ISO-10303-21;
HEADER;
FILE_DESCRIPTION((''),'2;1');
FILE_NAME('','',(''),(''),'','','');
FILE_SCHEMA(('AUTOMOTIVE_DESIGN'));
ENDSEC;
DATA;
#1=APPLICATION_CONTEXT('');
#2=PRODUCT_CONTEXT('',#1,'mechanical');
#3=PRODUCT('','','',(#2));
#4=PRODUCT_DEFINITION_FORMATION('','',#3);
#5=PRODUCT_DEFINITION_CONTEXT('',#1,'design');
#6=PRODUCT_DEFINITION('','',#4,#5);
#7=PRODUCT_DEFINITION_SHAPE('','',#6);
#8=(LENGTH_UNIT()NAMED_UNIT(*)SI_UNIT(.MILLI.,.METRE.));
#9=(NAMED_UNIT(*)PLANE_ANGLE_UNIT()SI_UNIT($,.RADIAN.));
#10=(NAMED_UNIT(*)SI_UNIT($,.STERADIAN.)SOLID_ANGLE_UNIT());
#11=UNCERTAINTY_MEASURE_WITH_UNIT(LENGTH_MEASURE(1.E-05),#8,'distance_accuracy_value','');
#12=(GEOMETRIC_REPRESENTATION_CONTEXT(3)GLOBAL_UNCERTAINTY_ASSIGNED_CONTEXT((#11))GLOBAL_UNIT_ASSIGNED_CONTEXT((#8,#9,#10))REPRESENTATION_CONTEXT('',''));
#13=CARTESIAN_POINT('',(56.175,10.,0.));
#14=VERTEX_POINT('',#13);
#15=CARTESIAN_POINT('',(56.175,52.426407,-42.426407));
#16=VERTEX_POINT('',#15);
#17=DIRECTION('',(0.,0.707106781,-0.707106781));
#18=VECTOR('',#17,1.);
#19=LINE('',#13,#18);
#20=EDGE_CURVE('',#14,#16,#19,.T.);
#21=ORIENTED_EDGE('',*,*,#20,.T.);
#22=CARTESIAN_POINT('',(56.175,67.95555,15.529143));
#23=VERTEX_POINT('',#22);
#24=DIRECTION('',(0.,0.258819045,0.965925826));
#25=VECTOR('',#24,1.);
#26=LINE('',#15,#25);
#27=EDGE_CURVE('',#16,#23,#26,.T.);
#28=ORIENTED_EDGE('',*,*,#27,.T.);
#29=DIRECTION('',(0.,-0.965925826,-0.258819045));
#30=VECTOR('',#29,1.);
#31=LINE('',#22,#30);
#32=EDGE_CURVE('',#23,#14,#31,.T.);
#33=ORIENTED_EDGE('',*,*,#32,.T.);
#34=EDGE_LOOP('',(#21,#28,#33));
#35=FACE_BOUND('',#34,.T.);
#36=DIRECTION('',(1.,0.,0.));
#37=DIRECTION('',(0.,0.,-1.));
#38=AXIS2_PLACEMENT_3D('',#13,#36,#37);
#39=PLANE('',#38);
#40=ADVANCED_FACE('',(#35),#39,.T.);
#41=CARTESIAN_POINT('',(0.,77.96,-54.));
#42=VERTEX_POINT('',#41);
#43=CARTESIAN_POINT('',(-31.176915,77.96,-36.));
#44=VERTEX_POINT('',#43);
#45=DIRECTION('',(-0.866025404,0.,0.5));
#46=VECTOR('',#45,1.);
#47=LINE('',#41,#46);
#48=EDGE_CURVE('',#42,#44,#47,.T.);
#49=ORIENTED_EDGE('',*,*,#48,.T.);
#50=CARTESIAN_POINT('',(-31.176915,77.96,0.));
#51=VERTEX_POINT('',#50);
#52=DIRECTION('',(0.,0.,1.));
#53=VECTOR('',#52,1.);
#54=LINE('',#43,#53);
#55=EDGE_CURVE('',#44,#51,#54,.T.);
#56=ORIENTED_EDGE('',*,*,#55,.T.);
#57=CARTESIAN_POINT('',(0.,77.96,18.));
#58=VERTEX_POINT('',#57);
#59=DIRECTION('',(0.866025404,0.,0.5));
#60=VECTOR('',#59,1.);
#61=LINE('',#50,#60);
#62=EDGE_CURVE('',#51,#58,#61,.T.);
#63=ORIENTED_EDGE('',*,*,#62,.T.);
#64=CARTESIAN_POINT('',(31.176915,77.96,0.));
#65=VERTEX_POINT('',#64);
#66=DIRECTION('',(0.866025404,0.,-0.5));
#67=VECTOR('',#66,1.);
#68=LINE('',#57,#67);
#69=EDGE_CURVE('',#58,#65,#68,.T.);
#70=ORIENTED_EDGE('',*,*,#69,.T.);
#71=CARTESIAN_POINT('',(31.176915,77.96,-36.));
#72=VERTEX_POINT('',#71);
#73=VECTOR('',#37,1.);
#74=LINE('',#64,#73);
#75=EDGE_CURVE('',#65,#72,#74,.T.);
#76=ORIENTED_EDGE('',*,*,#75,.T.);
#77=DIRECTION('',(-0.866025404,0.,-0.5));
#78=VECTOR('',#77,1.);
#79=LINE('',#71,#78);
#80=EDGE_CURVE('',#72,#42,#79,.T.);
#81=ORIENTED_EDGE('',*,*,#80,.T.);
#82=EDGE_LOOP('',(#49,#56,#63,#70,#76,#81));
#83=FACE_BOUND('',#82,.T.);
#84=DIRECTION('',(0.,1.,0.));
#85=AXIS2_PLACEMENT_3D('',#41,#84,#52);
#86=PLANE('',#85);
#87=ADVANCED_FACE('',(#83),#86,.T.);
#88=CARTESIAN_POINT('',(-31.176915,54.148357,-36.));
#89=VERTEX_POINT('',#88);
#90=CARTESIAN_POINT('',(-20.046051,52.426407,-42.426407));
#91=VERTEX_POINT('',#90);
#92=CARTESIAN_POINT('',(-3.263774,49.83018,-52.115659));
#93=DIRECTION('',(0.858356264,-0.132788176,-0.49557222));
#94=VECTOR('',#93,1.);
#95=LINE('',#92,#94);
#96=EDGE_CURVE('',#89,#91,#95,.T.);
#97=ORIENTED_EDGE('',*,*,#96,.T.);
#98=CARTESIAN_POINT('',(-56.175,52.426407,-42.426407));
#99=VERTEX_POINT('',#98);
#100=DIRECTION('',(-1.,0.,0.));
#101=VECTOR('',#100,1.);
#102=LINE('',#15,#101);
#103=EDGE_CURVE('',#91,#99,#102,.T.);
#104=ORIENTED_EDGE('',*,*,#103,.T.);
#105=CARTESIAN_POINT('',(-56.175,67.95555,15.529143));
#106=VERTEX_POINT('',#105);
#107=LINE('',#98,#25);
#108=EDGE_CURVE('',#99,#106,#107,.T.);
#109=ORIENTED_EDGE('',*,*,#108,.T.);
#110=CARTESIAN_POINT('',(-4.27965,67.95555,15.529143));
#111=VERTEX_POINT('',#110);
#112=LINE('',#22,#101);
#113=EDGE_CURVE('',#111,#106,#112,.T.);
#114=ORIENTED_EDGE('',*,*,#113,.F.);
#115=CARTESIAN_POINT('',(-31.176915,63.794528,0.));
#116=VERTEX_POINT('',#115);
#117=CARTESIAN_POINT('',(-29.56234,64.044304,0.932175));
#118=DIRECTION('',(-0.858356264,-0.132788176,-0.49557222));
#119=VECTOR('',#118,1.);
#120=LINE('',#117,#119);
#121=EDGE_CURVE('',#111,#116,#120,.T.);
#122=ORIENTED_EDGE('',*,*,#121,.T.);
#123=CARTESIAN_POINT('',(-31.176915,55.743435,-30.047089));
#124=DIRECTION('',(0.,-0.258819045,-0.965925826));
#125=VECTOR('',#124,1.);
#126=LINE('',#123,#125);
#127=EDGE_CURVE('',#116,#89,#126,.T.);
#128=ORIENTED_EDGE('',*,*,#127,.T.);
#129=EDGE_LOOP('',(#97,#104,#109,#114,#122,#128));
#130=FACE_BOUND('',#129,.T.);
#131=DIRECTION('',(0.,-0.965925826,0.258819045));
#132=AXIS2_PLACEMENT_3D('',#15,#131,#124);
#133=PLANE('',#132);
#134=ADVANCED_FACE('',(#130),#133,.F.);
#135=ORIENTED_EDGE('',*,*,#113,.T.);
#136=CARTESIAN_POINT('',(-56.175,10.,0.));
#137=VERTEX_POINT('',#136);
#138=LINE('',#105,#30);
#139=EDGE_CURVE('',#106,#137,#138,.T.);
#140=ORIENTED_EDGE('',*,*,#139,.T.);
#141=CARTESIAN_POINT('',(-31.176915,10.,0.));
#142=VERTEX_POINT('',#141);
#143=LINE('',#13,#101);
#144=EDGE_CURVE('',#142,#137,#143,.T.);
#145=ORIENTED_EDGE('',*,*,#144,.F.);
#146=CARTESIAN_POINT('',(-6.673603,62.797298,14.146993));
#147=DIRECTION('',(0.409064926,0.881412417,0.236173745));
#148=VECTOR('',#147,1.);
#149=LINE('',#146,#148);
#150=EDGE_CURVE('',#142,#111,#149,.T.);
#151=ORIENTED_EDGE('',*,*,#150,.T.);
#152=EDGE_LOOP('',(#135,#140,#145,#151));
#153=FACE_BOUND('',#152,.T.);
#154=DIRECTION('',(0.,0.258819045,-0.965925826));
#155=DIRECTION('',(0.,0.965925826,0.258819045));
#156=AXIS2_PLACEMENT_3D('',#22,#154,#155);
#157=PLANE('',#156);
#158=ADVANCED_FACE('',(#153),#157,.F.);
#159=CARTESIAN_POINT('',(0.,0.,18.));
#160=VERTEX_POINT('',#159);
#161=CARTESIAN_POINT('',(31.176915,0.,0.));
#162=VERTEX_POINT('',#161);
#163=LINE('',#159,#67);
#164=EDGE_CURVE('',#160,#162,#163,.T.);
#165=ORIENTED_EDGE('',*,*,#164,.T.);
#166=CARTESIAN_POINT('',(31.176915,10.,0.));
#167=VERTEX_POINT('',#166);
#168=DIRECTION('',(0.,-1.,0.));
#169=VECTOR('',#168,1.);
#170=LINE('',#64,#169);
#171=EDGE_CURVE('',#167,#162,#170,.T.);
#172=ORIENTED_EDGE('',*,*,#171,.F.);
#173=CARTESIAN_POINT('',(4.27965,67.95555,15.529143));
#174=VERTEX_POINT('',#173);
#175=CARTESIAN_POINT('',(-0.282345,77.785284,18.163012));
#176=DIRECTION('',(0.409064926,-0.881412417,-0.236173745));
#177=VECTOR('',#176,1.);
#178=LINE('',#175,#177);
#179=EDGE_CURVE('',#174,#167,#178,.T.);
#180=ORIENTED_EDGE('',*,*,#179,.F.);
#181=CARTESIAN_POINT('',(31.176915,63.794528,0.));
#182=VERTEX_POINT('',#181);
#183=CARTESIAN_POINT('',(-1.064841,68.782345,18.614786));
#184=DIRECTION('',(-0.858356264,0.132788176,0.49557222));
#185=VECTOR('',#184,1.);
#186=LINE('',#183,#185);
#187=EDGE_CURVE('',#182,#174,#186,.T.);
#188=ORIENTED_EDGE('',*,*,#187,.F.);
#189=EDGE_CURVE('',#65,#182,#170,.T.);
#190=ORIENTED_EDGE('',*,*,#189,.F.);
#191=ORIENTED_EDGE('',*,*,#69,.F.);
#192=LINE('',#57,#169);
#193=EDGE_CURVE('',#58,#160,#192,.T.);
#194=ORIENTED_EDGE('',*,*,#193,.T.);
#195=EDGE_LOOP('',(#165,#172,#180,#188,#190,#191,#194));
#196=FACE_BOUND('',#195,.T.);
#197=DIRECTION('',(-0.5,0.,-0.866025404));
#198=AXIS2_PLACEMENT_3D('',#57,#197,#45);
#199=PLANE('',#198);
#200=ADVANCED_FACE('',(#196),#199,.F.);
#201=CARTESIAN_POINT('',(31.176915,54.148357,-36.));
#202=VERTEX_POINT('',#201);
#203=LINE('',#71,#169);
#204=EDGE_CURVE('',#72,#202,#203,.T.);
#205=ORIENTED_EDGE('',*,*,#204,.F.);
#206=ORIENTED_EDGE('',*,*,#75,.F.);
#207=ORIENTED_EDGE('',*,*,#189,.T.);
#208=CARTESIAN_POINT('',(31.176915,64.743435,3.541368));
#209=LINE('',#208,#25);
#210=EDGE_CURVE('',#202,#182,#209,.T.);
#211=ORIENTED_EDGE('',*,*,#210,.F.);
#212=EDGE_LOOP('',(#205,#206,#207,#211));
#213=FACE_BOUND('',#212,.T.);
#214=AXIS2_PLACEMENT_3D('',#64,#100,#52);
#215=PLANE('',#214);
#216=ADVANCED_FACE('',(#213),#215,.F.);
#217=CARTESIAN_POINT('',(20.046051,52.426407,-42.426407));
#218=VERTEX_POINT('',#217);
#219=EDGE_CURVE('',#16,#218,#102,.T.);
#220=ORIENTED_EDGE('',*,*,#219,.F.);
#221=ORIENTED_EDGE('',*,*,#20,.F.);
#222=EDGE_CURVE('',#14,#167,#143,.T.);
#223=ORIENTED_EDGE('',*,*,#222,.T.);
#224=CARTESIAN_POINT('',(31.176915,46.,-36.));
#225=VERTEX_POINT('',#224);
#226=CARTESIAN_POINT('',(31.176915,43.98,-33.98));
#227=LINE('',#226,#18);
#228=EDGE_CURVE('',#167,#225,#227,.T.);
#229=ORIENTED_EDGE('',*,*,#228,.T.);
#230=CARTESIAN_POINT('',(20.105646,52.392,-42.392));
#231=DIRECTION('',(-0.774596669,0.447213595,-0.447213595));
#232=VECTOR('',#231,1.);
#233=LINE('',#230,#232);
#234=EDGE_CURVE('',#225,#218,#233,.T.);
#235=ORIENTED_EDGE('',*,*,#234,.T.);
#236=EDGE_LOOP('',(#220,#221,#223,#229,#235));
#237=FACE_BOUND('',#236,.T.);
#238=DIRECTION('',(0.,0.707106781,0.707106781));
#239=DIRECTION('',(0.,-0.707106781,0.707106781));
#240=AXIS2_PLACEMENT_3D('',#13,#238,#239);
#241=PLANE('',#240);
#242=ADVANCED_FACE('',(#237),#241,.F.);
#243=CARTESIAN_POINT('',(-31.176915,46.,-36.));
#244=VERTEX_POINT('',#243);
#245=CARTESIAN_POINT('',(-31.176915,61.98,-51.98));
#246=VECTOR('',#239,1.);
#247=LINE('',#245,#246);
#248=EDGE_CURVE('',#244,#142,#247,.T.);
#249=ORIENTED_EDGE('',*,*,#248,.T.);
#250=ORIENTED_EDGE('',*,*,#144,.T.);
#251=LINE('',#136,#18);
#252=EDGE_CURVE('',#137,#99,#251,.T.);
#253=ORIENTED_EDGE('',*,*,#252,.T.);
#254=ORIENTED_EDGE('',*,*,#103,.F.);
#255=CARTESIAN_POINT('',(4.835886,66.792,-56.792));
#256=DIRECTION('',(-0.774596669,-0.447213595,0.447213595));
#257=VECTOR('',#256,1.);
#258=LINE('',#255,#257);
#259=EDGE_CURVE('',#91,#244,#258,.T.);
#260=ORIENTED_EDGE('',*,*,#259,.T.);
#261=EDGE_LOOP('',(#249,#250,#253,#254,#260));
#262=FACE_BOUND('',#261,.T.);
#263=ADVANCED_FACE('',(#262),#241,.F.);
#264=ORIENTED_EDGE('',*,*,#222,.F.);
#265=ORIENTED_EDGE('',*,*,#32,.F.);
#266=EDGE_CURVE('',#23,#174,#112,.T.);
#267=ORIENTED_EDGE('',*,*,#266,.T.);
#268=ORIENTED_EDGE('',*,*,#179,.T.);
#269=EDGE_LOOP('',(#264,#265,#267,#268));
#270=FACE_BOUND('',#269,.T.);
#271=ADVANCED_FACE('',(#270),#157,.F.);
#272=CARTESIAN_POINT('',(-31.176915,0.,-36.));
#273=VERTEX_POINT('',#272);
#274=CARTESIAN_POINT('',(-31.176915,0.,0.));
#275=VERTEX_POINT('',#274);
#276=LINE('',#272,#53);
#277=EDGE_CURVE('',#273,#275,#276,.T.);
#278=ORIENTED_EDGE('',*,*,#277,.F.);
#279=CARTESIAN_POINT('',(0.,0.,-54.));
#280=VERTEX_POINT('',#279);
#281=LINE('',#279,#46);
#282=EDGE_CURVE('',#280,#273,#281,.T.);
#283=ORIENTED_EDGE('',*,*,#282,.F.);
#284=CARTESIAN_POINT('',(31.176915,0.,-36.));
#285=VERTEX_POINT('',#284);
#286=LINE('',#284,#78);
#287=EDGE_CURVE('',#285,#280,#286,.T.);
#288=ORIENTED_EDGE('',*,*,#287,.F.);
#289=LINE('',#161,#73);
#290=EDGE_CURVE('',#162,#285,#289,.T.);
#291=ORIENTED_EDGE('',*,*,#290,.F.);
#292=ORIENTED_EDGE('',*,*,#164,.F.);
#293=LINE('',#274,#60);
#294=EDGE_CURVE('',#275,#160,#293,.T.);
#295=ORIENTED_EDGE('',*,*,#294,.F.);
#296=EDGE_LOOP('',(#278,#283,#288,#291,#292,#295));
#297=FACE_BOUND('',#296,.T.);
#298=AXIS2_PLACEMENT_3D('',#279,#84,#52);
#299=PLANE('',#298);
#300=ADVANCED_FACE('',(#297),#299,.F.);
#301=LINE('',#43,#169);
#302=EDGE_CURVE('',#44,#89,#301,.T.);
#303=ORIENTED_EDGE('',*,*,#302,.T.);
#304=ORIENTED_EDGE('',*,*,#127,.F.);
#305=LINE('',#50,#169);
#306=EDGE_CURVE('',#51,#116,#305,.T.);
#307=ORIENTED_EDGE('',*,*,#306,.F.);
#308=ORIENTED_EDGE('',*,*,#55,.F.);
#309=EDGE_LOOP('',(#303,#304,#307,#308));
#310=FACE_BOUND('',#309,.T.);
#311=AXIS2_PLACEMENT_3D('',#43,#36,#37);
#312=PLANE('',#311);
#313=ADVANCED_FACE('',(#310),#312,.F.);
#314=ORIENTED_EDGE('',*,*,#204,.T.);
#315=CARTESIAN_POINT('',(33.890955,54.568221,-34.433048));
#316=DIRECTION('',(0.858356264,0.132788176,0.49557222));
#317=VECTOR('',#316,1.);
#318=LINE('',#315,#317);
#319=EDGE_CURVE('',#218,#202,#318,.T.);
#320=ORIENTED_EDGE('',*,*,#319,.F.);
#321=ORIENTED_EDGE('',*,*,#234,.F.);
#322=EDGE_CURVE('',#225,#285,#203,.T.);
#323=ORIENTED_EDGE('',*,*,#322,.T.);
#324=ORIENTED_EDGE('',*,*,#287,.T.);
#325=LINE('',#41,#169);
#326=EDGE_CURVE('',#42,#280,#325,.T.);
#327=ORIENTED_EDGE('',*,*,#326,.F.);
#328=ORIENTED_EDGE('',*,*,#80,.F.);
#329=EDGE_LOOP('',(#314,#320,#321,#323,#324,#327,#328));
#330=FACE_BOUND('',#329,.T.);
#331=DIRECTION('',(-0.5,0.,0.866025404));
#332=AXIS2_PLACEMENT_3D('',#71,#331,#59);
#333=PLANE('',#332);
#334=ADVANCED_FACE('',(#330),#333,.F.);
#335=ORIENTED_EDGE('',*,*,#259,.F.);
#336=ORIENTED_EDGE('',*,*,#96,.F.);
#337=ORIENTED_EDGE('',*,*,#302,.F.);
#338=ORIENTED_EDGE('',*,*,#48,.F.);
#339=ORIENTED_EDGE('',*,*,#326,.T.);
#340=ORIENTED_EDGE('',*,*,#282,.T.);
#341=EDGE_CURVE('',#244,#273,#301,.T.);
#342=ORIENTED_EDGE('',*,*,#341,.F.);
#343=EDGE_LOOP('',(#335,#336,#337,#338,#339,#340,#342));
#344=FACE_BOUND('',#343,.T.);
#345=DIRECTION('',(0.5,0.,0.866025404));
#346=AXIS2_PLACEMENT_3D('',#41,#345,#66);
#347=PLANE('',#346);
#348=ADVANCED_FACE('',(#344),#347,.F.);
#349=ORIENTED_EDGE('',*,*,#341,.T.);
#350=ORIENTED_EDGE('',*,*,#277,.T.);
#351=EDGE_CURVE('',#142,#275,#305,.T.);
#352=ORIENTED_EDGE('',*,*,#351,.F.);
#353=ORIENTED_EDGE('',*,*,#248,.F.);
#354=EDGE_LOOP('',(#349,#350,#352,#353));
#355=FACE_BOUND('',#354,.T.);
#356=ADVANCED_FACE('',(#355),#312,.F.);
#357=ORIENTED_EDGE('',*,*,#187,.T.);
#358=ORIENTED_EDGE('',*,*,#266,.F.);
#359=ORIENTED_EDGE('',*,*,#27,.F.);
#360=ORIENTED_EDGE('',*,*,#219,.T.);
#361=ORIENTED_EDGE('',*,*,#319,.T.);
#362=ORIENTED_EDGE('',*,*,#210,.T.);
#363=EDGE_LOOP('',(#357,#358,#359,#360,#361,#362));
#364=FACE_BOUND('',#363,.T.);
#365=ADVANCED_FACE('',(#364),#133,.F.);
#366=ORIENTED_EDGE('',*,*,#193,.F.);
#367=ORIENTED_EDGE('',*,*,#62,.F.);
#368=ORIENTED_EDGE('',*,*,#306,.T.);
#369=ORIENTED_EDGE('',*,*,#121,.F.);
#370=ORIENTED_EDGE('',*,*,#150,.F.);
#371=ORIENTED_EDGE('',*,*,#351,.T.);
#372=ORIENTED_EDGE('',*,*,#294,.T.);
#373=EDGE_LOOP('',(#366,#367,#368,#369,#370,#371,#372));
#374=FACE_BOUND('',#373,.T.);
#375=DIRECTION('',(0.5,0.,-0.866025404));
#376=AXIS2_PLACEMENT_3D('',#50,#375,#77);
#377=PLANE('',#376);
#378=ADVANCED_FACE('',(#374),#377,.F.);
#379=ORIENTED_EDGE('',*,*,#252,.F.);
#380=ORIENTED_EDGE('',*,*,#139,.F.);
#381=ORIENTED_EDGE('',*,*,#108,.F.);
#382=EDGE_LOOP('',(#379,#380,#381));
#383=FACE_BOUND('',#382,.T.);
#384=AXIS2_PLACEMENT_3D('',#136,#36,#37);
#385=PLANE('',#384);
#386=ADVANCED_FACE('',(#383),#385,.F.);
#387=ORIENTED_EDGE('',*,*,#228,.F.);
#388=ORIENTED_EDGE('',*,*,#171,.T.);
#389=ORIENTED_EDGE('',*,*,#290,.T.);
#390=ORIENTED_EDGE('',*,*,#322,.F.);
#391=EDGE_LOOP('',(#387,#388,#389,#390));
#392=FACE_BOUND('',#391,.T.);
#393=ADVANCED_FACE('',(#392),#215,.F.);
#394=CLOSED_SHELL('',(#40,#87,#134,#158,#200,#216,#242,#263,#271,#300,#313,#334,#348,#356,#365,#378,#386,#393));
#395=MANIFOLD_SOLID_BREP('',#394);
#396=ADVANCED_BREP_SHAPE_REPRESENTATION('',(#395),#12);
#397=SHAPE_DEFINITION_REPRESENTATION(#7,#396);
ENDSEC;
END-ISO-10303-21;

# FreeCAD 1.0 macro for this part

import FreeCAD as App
import Part
import Sketcher

V = App.Vector
Q = App.Units.Quantity

doc = App.newDocument("Part")
body = doc.addObject("PartDesign::Body", "Body")

# Sketch on XZ plane
sketch1 = doc.addObject("Sketcher::SketchObject", "Sketch")
body.addObject(sketch1)
sketch1.AttachmentSupport = (doc.XZ_Plane, [""])
sketch1.MapMode = "FlatFace"
sketch1.addGeometry([
    Part.LineSegment(V(0, -54, 0), V(-31.176915, -36, 0)),  # 0
    Part.LineSegment(V(-31.176915, -36, 0), V(-31.176915, 0, 0)),  # 1
    Part.LineSegment(V(-31.176915, 0, 0), V(0, 18, 0)),  # 2
    Part.LineSegment(V(0, 18, 0), V(31.176915, 0, 0)),  # 3
    Part.LineSegment(V(31.176915, 0, 0), V(31.176915, -36, 0)),  # 4
    Part.LineSegment(V(31.176915, -36, 0), V(0, -54, 0)),  # 5
], False)
sketch1.addConstraint([
    Sketcher.Constraint("Coincident", 0, 2, 1, 1),
    Sketcher.Constraint("Coincident", 1, 2, 2, 1),
    Sketcher.Constraint("Coincident", 2, 2, 3, 1),
    Sketcher.Constraint("Coincident", 3, 2, 4, 1),
    Sketcher.Constraint("Coincident", 4, 2, 5, 1),
    Sketcher.Constraint("Coincident", 5, 2, 0, 1),
    Sketcher.Constraint("Vertical", 1),
    Sketcher.Constraint("Vertical", 4),
    Sketcher.Constraint("Symmetric", 1, 2, 3, 2, -1, 1),
    Sketcher.Constraint("PointOnObject", 1, 2, -1),
    Sketcher.Constraint("PointOnObject", 2, 2, -2),
    Sketcher.Constraint("PointOnObject", 5, 2, -2),
    Sketcher.Constraint("Parallel", 0, 3),
    Sketcher.Constraint("Parallel", 2, 5),
    Sketcher.Constraint("DistanceY", 1, 1, 1, 2, 36.0),
    Sketcher.Constraint("Angle", 0, Q("150 deg")),
    Sketcher.Constraint("Distance", 0, 36.0),
])
pad1 = doc.addObject("PartDesign::Pad", "Pad")
body.addObject(pad1)
pad1.Profile = sketch1
pad1.Length = 77.96
pad1.Reversed = True

# Sketch on YZ plane
sketch2 = doc.addObject("Sketcher::SketchObject", "Sketch001")
body.addObject(sketch2)
sketch2.AttachmentSupport = (doc.YZ_Plane, [""])
sketch2.MapMode = "FlatFace"
sketch2.addGeometry([
    Part.LineSegment(V(10, 0, 0), V(52.426407, -42.426407, 0)),
    Part.LineSegment(V(52.426407, -42.426407, 0), V(67.95555, 15.529143, 0)),
    Part.LineSegment(V(67.95555, 15.529143, 0), V(10, 0, 0)),
], False)
sketch2.addConstraint([
    Sketcher.Constraint("Coincident", 0, 2, 1, 1),
    Sketcher.Constraint("Coincident", 1, 2, 2, 1),
    Sketcher.Constraint("Coincident", 2, 2, 0, 1),
    Sketcher.Constraint("PointOnObject", 2, 2, -1),
    Sketcher.Constraint("Equal", 0, 1),
    Sketcher.Constraint("Equal", 1, 2),
    Sketcher.Constraint("Angle", 0, Q("-45 deg")),
    Sketcher.Constraint("Distance", 0, 60.0),
    Sketcher.Constraint("DistanceX", -1, 1, 2, 2, 10.0),
])
pad2 = doc.addObject("PartDesign::Pad", "Pad001")
body.addObject(pad2)
pad2.Profile = sketch2
pad2.Length = 112.35
pad2.Midplane = True

doc.recompute()
